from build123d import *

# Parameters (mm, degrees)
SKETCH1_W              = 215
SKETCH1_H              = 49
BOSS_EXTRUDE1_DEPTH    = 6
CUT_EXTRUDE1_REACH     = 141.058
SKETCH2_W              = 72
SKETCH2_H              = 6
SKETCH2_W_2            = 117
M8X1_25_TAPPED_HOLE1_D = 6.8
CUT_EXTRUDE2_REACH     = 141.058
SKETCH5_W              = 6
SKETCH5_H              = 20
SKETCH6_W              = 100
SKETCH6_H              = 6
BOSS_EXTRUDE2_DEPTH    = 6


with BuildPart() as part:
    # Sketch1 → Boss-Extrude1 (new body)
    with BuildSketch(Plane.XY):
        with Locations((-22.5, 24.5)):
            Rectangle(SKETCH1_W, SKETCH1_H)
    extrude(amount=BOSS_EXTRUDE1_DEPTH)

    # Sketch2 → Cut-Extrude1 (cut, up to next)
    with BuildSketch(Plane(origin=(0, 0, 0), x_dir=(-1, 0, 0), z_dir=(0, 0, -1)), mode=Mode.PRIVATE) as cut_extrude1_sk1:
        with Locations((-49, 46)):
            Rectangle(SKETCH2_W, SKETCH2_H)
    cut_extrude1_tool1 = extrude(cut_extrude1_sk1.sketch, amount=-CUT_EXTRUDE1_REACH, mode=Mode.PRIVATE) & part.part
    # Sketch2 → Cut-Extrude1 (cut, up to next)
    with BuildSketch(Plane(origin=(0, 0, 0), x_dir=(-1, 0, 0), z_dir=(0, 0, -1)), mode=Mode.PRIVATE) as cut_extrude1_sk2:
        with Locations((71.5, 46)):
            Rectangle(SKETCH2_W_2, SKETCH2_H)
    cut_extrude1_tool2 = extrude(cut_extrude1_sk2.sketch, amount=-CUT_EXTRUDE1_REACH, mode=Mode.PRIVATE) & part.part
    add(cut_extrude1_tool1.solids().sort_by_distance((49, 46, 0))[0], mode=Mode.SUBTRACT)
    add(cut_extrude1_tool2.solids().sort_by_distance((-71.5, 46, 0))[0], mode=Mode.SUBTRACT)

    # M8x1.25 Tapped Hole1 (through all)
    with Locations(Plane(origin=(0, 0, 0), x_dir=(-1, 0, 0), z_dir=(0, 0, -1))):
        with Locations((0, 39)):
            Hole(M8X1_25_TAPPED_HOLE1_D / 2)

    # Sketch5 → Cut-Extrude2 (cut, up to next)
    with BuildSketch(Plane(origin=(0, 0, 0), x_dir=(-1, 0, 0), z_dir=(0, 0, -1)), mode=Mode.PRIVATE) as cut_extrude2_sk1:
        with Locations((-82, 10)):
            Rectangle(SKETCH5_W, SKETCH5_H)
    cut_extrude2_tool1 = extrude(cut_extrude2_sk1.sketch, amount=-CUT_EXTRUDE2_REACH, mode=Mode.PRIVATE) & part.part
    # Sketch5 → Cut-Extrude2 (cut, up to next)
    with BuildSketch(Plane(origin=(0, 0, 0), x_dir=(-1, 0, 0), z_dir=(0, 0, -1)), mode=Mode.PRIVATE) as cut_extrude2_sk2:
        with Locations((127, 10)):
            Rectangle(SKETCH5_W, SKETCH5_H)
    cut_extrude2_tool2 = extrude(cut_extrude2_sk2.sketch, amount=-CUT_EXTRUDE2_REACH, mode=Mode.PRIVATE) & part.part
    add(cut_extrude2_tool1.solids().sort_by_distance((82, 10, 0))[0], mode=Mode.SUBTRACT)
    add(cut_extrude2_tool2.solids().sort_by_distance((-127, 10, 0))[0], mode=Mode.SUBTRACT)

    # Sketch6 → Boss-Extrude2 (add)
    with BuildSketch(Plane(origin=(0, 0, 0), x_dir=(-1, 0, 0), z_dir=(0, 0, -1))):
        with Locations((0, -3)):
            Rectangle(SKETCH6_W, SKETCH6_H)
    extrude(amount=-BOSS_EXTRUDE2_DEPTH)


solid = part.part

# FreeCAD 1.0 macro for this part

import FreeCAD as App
import Part
import Sketcher
from FreeCAD import Vector
Q = App.Units.Quantity


def add_polygon(sketch, points):
    """Adds a closed chain of lines whose ends are joined by coincident constraints."""
    first, n = sketch.GeometryCount, len(points)
    for a, b in zip(points, points[1:] + points[:1]):
        sketch.addGeometry(Part.LineSegment(App.Vector(*a, 0), App.Vector(*b, 0)), False)
    for i in range(n):
        sketch.addConstraint(Sketcher.Constraint("Coincident", first + i, 2, first + (i + 1) % n, 1))

doc = App.newDocument("Part")
body = doc.addObject("PartDesign::Body", "Body")

# Sketch on XY plane
sketch1 = body.newObject("Sketcher::SketchObject", "Sketch")
sketch1.AttachmentSupport = (doc.getObject("XY_Plane"), [""])
sketch1.MapMode = "FlatFace"
add_polygon(sketch1, [(-130, 49), (-130, 0), (85, 0), (85, 49)])  # lines 0-3
sketch1.addConstraint([
    Sketcher.Constraint("Vertical", 0),
    Sketcher.Constraint("Horizontal", 1),
    Sketcher.Constraint("Vertical", 2),
    Sketcher.Constraint("Horizontal", 3),
    Sketcher.Constraint("PointOnObject", 0, 2, -1),
    Sketcher.Constraint("DistanceX", 1, 1, 1, 2, Q("215 mm")),
    Sketcher.Constraint("DistanceY", 0, 2, 0, 1, Q("49 mm")),
    Sketcher.Constraint("DistanceX", 0, 2, -1, 1, Q("130 mm")),
])
pad1 = body.newObject("PartDesign::Pad", "Pad")
pad1.Profile = sketch1
pad1.Length = 6

# Sketch on XY plane
sketch2 = body.newObject("Sketcher::SketchObject", "Sketch001")
sketch2.AttachmentSupport = (doc.getObject("XY_Plane"), [""])
sketch2.MapMode = "FlatFace"
add_polygon(sketch2, [(85, 49), (85, 43), (13, 43), (13, 49)])  # lines 0-3
sketch2.addConstraint([
    Sketcher.Constraint("Vertical", 0),
    Sketcher.Constraint("Horizontal", 1),
    Sketcher.Constraint("Vertical", 2),
    Sketcher.Constraint("Horizontal", 3),
    Sketcher.Constraint("DistanceX", 1, 2, 1, 1, Q("72 mm")),
    Sketcher.Constraint("DistanceY", 0, 2, 0, 1, Q("6 mm")),
    Sketcher.Constraint("DistanceX", -1, 1, 0, 2, Q("85 mm")),
    Sketcher.Constraint("DistanceY", -1, 1, 0, 2, Q("43 mm")),
])
pocket1 = body.newObject("PartDesign::Pocket", "Pocket")
pocket1.Profile = sketch2
pocket1.Type = "UpToFirst"
pocket1.Reversed = True

# Sketch on XY plane
sketch3 = body.newObject("Sketcher::SketchObject", "Sketch002")
sketch3.AttachmentSupport = (doc.getObject("XY_Plane"), [""])
sketch3.MapMode = "FlatFace"
add_polygon(sketch3, [(-13, 49), (-13, 43), (-130, 43), (-130, 49)])  # lines 0-3
sketch3.addConstraint([
    Sketcher.Constraint("Vertical", 0),
    Sketcher.Constraint("Horizontal", 1),
    Sketcher.Constraint("Vertical", 2),
    Sketcher.Constraint("Horizontal", 3),
    Sketcher.Constraint("DistanceX", 1, 2, 1, 1, Q("117 mm")),
    Sketcher.Constraint("DistanceY", 0, 2, 0, 1, Q("6 mm")),
    Sketcher.Constraint("DistanceX", 0, 2, -1, 1, Q("13 mm")),
    Sketcher.Constraint("DistanceY", -1, 1, 0, 2, Q("43 mm")),
])
pocket2 = body.newObject("PartDesign::Pocket", "Pocket001")
pocket2.Profile = sketch3
pocket2.Type = "UpToFirst"
pocket2.Reversed = True

# Sketch on XY plane
sketch4 = body.newObject("Sketcher::SketchObject", "Sketch003")
sketch4.AttachmentSupport = (doc.getObject("XY_Plane"), [""])
sketch4.MapMode = "FlatFace"
sketch4.addGeometry(Part.Circle(Vector(0, 39, 0), Vector(0, 0, 1), 3.4), False)
sketch4.addConstraint([
    Sketcher.Constraint("PointOnObject", 0, 3, -2),
    Sketcher.Constraint("Diameter", 0, Q("6.8 mm")),
    Sketcher.Constraint("DistanceY", -1, 1, 0, 3, Q("39 mm")),
])
doc.recompute()
hole = body.newObject("PartDesign::Hole", "Hole")
hole.Profile = sketch4
hole.ThreadType = "None"
hole.Diameter = 6.8
hole.DepthType = "ThroughAll"
hole.Reversed = True

# Sketch on XY plane
sketch5 = body.newObject("Sketcher::SketchObject", "Sketch004")
sketch5.AttachmentSupport = (doc.getObject("XY_Plane"), [""])
sketch5.MapMode = "FlatFace"
add_polygon(sketch5, [(85, 20), (85, 0), (79, 0), (79, 20)])  # lines 0-3
sketch5.addConstraint([
    Sketcher.Constraint("Vertical", 0),
    Sketcher.Constraint("Horizontal", 1),
    Sketcher.Constraint("Vertical", 2),
    Sketcher.Constraint("Horizontal", 3),
    Sketcher.Constraint("PointOnObject", 0, 2, -1),
    Sketcher.Constraint("DistanceX", 1, 2, 1, 1, Q("6 mm")),
    Sketcher.Constraint("DistanceY", 0, 2, 0, 1, Q("20 mm")),
    Sketcher.Constraint("DistanceX", -1, 1, 0, 2, Q("85 mm")),
])
pocket3 = body.newObject("PartDesign::Pocket", "Pocket002")
pocket3.Profile = sketch5
pocket3.Type = "UpToFirst"
pocket3.Reversed = True

# Sketch on XY plane
sketch6 = body.newObject("Sketcher::SketchObject", "Sketch005")
sketch6.AttachmentSupport = (doc.getObject("XY_Plane"), [""])
sketch6.MapMode = "FlatFace"
add_polygon(sketch6, [(-124, 20), (-124, 0), (-130, 0), (-130, 20)])  # lines 0-3
sketch6.addConstraint([
    Sketcher.Constraint("Vertical", 0),
    Sketcher.Constraint("Horizontal", 1),
    Sketcher.Constraint("Vertical", 2),
    Sketcher.Constraint("Horizontal", 3),
    Sketcher.Constraint("PointOnObject", 0, 2, -1),
    Sketcher.Constraint("DistanceX", 1, 2, 1, 1, Q("6 mm")),
    Sketcher.Constraint("DistanceY", 0, 2, 0, 1, Q("20 mm")),
    Sketcher.Constraint("DistanceX", 0, 2, -1, 1, Q("124 mm")),
])
pocket4 = body.newObject("PartDesign::Pocket", "Pocket003")
pocket4.Profile = sketch6
pocket4.Type = "UpToFirst"
pocket4.Reversed = True

# Sketch on XY plane
sketch7 = body.newObject("Sketcher::SketchObject", "Sketch006")
sketch7.AttachmentSupport = (doc.getObject("XY_Plane"), [""])
sketch7.MapMode = "FlatFace"
add_polygon(sketch7, [(50, 0), (50, -6), (-50, -6), (-50, 0)])  # lines 0-3
sketch7.addConstraint([
    Sketcher.Constraint("Vertical", 0),
    Sketcher.Constraint("Horizontal", 1),
    Sketcher.Constraint("Vertical", 2),
    Sketcher.Constraint("Horizontal", 3),
    Sketcher.Constraint("Symmetric", 2, 2, 3, 2, -1, 1),
    Sketcher.Constraint("DistanceX", 1, 2, 1, 1, Q("100 mm")),
    Sketcher.Constraint("DistanceY", 0, 2, 0, 1, Q("6 mm")),
])
pad2 = body.newObject("PartDesign::Pad", "Pad001")
pad2.Profile = sketch7
pad2.Length = 6

doc.recompute()
